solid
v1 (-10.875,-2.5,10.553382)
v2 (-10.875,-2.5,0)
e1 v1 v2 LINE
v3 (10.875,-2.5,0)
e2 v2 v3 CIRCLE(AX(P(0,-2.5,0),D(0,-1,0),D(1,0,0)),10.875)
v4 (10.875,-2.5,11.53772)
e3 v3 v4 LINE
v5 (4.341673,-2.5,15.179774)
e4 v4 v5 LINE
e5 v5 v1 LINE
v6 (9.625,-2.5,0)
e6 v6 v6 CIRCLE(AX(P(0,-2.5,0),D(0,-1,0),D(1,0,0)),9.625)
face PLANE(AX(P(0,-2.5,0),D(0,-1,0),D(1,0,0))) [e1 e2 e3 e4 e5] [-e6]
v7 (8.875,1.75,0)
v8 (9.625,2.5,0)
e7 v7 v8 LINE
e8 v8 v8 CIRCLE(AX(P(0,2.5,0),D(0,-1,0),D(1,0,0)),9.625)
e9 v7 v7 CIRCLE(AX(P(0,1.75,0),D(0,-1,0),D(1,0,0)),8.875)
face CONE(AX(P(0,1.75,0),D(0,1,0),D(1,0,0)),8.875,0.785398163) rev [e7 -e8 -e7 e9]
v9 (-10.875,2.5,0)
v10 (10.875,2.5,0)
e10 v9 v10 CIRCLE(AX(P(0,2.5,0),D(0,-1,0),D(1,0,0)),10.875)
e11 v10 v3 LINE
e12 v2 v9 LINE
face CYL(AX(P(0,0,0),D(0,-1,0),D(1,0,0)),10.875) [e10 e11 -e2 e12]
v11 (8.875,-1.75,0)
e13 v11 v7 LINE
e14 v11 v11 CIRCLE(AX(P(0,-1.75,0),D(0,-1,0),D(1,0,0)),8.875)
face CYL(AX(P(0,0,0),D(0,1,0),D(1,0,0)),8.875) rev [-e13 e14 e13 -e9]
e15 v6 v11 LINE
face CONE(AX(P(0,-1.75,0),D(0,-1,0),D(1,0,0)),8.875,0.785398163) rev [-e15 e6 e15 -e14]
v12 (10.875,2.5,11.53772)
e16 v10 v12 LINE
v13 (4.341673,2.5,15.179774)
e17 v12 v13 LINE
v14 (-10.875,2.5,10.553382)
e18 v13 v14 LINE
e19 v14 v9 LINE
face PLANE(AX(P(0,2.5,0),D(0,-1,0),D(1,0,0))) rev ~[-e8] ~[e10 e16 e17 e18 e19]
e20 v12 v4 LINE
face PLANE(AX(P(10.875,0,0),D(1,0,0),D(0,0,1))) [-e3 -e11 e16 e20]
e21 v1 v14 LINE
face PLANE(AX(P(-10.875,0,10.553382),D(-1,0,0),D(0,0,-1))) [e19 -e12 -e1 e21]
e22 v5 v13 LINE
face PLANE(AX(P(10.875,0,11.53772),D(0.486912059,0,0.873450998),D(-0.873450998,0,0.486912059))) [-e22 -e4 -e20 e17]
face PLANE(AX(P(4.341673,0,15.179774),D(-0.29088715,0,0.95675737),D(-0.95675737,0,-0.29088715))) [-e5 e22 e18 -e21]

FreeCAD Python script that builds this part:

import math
import FreeCAD as App
import Part
import Sketcher


def edges_at(feature, points):
    """Names of the edges that pass closest to the given points."""
    edges = feature.Shape.Edges
    near = lambda p: min(range(len(edges)), key=lambda i: edges[i].distToShape(Part.Vertex(*p))[0])
    return sorted({f"Edge{near(p) + 1}" for p in points})

doc = App.newDocument("Part")
body = doc.addObject("PartDesign::Body", "Body")

sketch1 = body.newObject("Sketcher::SketchObject", "Sketch")
sketch1.AttachmentSupport = (doc.getObject("XZ_Plane"), [""])
sketch1.MapMode = "FlatFace"
sketch1.addGeometry([
    Part.ArcOfCircle(Part.Circle(App.Vector(0, 0, 0), App.Vector(0, 0, 1), 11), math.radians(180), math.radians(360)),
    Part.LineSegment(App.Vector(11, 0, 0), App.Vector(11, 12, 0)),
    Part.LineSegment(App.Vector(11, 12, 0), App.Vector(4, 15, 0)),
    Part.LineSegment(App.Vector(4, 15, 0), App.Vector(-11, 11, 0)),
    Part.LineSegment(App.Vector(-11, 11, 0), App.Vector(-11, 0, 0)),
    Part.Circle(App.Vector(0, 0, 0), App.Vector(0, 0, 1), 9),
], False)
sketch1.addConstraint([
    Sketcher.Constraint("Tangent", 0, 2, 1, 1),
    Sketcher.Constraint("Coincident", 1, 2, 2, 1),
    Sketcher.Constraint("Coincident", 2, 2, 3, 1),
    Sketcher.Constraint("Coincident", 3, 2, 4, 1),
    Sketcher.Constraint("Tangent", 4, 2, 0, 1),
    Sketcher.Constraint("Vertical", 1),
    Sketcher.Constraint("Vertical", 4),
    Sketcher.Constraint("Coincident", 0, 3, -1, 1),
    Sketcher.Constraint("Coincident", 5, 3, -1, 1),
    Sketcher.Constraint("Diameter", 5, 17.75),
    Sketcher.Constraint("Radius", 0, 10.875),
    Sketcher.Constraint("Distance", 2, 7.479901),
    Sketcher.Constraint("DistanceY", 1, 1, 1, 2, 11.53772),
    Sketcher.Constraint("DistanceY", 4, 2, 4, 1, 10.553382),
    Sketcher.Constraint("Distance", 3, 15.904422),
])
pad1 = body.newObject("PartDesign::Pad", "Pad")
pad1.Profile = sketch1
pad1.Type = "TwoLengths"
pad1.Length = 2.5
pad1.Length2 = 2.5
doc.recompute()

chamfer = body.newObject("PartDesign::Chamfer", "Chamfer")
chamfer.Base = (pad1, edges_at(pad1, [(-8.875, -2.5, 0), (-8.875, 2.5, 0)]))
chamfer.Size = 0.75

doc.recompute()
